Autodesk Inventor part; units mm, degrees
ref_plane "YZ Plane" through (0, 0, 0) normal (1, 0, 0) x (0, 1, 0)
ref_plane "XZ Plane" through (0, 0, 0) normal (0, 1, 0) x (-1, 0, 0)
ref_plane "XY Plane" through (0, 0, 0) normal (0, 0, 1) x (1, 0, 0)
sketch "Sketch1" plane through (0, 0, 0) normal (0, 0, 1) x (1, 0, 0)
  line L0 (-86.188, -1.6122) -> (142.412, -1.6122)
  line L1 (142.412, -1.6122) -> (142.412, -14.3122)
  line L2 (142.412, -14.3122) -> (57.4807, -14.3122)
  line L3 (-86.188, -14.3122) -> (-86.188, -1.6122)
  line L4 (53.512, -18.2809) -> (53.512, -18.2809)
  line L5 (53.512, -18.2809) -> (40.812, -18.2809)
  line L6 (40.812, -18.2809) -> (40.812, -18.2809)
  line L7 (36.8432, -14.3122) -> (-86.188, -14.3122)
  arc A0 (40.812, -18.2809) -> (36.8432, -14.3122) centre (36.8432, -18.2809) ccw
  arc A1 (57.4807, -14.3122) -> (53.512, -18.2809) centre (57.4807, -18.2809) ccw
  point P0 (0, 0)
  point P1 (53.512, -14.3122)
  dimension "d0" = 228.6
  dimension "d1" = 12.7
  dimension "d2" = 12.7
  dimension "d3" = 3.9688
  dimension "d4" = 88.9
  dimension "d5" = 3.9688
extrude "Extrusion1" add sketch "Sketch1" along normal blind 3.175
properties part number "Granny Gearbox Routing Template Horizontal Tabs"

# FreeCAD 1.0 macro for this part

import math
import FreeCAD as App
import Part
import Sketcher
Q = App.Units.Quantity

doc = App.newDocument("Part")
params = doc.addObject("Spreadsheet::Sheet", "Params")
for row, (alias, value) in enumerate([
    ("sketch1_width", "9 in"),
    ("sketch1_width2", "0.5 in"),
    ("sketch1_radius", "0.156252 in"),
    ("pad1_length", "0.125 in"),
], start=1):
    params.set(f"A{row}", alias)
    params.set(f"B{row}", "=" + value)
    params.setAlias(f"B{row}", alias)

body = doc.addObject("PartDesign::Body", "Body")

sketch1 = body.newObject("Sketcher::SketchObject", "Sketch")
sketch1.AttachmentSupport = (doc.getObject("XY_Plane"), [""])
sketch1.MapMode = "FlatFace"
sketch1.addGeometry([
    Part.LineSegment(App.Vector(142.412, -1.6122, 0), App.Vector(-86.188, -1.6122, 0)),
    Part.LineSegment(App.Vector(-86.188, -1.6122, 0), App.Vector(-86.188, -14.3122, 0)),
    Part.LineSegment(App.Vector(-86.188, -14.3122, 0), App.Vector(36.8432, -14.3122, 0)),
    Part.ArcOfCircle(Part.Circle(App.Vector(36.8432, -18.2809, 0), App.Vector(0, 0, 1), 3.9688), math.radians(0), math.radians(90)),
    Part.LineSegment(App.Vector(40.812, -18.2809, 0), App.Vector(53.512, -18.2809, 0)),
    Part.ArcOfCircle(Part.Circle(App.Vector(57.4807, -18.2809, 0), App.Vector(0, 0, 1), 3.9687), math.radians(90), math.radians(180)),
    Part.LineSegment(App.Vector(57.4807, -14.3122, 0), App.Vector(142.412, -14.3122, 0)),
    Part.LineSegment(App.Vector(142.412, -14.3122, 0), App.Vector(142.412, -1.6122, 0)),
], False)
sketch1.addConstraint([
    Sketcher.Constraint("Coincident", 0, 2, 1, 1),
    Sketcher.Constraint("Coincident", 1, 2, 2, 1),
    Sketcher.Constraint("Tangent", 2, 2, 3, 2),
    Sketcher.Constraint("Coincident", 3, 1, 4, 1),
    Sketcher.Constraint("Coincident", 4, 2, 5, 2),
    Sketcher.Constraint("Tangent", 5, 1, 6, 1),
    Sketcher.Constraint("Coincident", 6, 2, 7, 1),
    Sketcher.Constraint("Coincident", 7, 2, 0, 1),
    Sketcher.Constraint("Horizontal", 0),
    Sketcher.Constraint("Vertical", 1),
    Sketcher.Constraint("Horizontal", 2),
    Sketcher.Constraint("Horizontal", 4),
    Sketcher.Constraint("Horizontal", 6),
    Sketcher.Constraint("Vertical", 7),
    Sketcher.Constraint("Equal", 3, 5),
    Sketcher.Constraint("Horizontal", 3, 3, 5, 3),
    Sketcher.Constraint("Horizontal", 5, 3, 3, 1),
    Sketcher.Constraint("Equal", 4, 1),
    Sketcher.Constraint("DistanceX", 0, 2, 0, 1, Q("9 in")),
    Sketcher.Constraint("DistanceX", 4, 1, 4, 2, Q("0.5 in")),
    Sketcher.Constraint("Radius", 3, Q("0.156252 in")),
    Sketcher.Constraint("DistanceX", 4, 2, 6, 2, Q("3.5 in")),
    Sketcher.Constraint("DistanceX", -1, 1, 3, 3, 36.8432),
    Sketcher.Constraint("DistanceY", 3, 3, -1, 1, 18.281),
])
sketch1.setExpression("Constraints[18]", "Params.sketch1_width")
sketch1.setExpression("Constraints[19]", "Params.sketch1_width2")
sketch1.setExpression("Constraints[20]", "Params.sketch1_radius")
pad1 = body.newObject("PartDesign::Pad", "Pad")
pad1.Profile = sketch1
pad1.setExpression("Length", "Params.pad1_length")

doc.recompute()
